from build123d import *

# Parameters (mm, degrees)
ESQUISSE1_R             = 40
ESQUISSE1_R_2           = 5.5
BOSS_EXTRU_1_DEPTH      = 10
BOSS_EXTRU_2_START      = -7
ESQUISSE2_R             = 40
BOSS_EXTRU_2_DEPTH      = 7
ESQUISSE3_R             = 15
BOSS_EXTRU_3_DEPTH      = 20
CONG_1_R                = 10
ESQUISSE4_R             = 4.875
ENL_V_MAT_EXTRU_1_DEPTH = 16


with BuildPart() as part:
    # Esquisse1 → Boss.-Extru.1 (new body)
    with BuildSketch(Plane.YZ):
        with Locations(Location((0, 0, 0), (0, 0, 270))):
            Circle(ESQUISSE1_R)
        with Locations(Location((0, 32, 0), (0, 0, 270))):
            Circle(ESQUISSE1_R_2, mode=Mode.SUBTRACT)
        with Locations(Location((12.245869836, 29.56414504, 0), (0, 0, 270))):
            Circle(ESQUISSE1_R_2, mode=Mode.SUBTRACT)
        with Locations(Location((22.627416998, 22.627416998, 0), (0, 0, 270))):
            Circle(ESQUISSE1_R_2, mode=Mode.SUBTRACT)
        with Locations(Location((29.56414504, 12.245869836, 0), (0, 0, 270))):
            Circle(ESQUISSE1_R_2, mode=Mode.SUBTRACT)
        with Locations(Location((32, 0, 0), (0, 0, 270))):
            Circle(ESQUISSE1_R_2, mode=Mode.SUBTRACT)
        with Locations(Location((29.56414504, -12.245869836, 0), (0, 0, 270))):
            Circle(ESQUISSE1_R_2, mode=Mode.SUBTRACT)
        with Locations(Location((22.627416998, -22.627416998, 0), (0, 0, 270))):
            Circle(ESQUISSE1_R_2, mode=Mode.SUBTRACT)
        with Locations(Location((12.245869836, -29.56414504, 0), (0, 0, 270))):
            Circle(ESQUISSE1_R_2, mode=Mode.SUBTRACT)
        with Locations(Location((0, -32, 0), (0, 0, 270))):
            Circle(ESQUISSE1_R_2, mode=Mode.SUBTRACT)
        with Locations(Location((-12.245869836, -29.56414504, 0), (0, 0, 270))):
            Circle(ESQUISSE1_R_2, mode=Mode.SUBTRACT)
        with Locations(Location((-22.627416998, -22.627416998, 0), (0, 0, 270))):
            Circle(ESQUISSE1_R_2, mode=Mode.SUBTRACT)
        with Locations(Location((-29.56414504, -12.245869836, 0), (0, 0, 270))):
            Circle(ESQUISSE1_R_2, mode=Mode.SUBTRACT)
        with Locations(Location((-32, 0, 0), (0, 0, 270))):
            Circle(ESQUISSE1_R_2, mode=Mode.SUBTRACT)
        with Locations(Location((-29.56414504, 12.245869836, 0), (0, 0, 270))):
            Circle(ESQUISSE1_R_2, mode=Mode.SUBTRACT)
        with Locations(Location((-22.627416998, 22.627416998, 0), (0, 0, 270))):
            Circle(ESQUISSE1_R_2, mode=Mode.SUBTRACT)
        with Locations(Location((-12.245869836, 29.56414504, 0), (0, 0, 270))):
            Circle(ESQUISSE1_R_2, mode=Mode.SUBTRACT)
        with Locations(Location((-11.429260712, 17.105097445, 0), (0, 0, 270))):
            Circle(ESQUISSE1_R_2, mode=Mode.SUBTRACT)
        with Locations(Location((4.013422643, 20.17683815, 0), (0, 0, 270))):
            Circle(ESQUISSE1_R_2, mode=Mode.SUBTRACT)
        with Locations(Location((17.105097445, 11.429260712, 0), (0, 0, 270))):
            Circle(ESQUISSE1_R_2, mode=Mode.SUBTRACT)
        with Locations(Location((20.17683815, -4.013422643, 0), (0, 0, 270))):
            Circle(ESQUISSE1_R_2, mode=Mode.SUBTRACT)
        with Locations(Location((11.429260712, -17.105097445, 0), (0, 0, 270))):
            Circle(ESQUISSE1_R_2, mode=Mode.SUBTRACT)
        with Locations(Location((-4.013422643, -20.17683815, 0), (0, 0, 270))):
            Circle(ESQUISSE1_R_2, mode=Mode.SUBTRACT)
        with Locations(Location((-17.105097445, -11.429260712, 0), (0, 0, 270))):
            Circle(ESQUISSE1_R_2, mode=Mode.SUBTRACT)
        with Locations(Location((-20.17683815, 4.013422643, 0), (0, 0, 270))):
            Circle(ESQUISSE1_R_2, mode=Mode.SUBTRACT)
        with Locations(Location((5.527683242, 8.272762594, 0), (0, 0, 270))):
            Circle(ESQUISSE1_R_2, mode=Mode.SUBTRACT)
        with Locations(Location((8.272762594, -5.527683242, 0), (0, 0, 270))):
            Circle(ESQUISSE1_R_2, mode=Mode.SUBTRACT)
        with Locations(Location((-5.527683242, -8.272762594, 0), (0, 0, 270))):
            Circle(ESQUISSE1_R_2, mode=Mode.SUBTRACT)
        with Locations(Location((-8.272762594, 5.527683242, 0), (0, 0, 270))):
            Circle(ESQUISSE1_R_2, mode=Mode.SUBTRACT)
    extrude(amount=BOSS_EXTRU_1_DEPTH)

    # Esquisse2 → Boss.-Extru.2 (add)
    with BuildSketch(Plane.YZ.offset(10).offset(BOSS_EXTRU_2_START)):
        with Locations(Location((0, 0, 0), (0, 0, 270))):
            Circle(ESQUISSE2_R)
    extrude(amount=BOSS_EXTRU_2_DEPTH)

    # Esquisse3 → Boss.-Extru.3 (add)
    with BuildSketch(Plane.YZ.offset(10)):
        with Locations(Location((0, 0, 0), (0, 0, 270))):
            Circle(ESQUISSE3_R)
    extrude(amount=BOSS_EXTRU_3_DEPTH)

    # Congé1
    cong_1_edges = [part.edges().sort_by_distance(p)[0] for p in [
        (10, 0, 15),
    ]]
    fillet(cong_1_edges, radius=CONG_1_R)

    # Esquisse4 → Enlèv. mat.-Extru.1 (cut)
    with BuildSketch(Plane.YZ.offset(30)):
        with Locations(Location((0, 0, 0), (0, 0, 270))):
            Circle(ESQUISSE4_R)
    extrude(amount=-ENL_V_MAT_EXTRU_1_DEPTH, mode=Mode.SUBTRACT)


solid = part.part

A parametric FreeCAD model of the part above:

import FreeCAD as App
import Part
import Sketcher
from FreeCAD import Vector
Q = App.Units.Quantity


def edges_at(feature, points):
    """Names of the edges that pass closest to the given points."""
    edges = feature.Shape.Edges
    near = lambda p: min(range(len(edges)), key=lambda i: edges[i].distToShape(Part.Vertex(*p))[0])
    return sorted({f"Edge{near(p) + 1}" for p in points})

doc = App.newDocument("Part")
body = doc.addObject("PartDesign::Body", "Body")

sketch1 = doc.addObject("Sketcher::SketchObject", "Sketch")
body.addObject(sketch1)
sketch1.AttachmentSupport = (doc.YZ_Plane, [""])
sketch1.MapMode = "FlatFace"
sketch1.addGeometry(Part.Circle(Vector(0, 0, 0), Vector(0, 0, 1), 40), False)
sketch1.addGeometry(Part.Circle(Vector(-22.627417, 22.627417, 0), Vector(0, 0, 1), 5.5), False)
sketch1.addGeometry(Part.Circle(Vector(-29.564145, 12.24587, 0), Vector(0, 0, 1), 5.5), False)
sketch1.addGeometry(Part.Circle(Vector(-20.176838, 4.013423, 0), Vector(0, 0, 1), 5.5), False)
sketch1.addGeometry(Part.Circle(Vector(-12.24587, 29.564145, 0), Vector(0, 0, 1), 5.5), False)
sketch1.addGeometry(Part.Circle(Vector(0, 32, 0), Vector(0, 0, 1), 5.5), False)
sketch1.addGeometry(Part.Circle(Vector(-11.429261, 17.105097, 0), Vector(0, 0, 1), 5.5), False)
sketch1.addGeometry(Part.Circle(Vector(-8.272763, 5.527683, 0), Vector(0, 0, 1), 5.5), False)
sketch1.addGeometry(Part.Circle(Vector(-32, 0, 0), Vector(0, 0, 1), 5.5), False)
sketch1.addGeometry(Part.Circle(Vector(-29.564145, -12.24587, 0), Vector(0, 0, 1), 5.5), False)
sketch1.addGeometry(Part.Circle(Vector(-22.627417, -22.627417, 0), Vector(0, 0, 1), 5.5), False)
sketch1.addGeometry(Part.Circle(Vector(-17.105097, -11.429261, 0), Vector(0, 0, 1), 5.5), False)
sketch1.addGeometry(Part.Circle(Vector(-5.527683, -8.272763, 0), Vector(0, 0, 1), 5.5), False)
sketch1.addGeometry(Part.Circle(Vector(-12.24587, -29.564145, 0), Vector(0, 0, 1), 5.5), False)
sketch1.addGeometry(Part.Circle(Vector(-4.013423, -20.176838, 0), Vector(0, 0, 1), 5.5), False)
sketch1.addGeometry(Part.Circle(Vector(4.013423, 20.176838, 0), Vector(0, 0, 1), 5.5), False)
sketch1.addGeometry(Part.Circle(Vector(12.24587, 29.564145, 0), Vector(0, 0, 1), 5.5), False)
sketch1.addGeometry(Part.Circle(Vector(5.527683, 8.272763, 0), Vector(0, 0, 1), 5.5), False)
sketch1.addGeometry(Part.Circle(Vector(17.105097, 11.429261, 0), Vector(0, 0, 1), 5.5), False)
sketch1.addGeometry(Part.Circle(Vector(22.627417, 22.627417, 0), Vector(0, 0, 1), 5.5), False)
sketch1.addGeometry(Part.Circle(Vector(29.564145, 12.24587, 0), Vector(0, 0, 1), 5.5), False)
sketch1.addGeometry(Part.Circle(Vector(32, 0, 0), Vector(0, 0, 1), 5.5), False)
sketch1.addGeometry(Part.Circle(Vector(8.272763, -5.527683, 0), Vector(0, 0, 1), 5.5), False)
sketch1.addGeometry(Part.Circle(Vector(11.429261, -17.105097, 0), Vector(0, 0, 1), 5.5), False)
sketch1.addGeometry(Part.Circle(Vector(0, -32, 0), Vector(0, 0, 1), 5.5), False)
sketch1.addGeometry(Part.Circle(Vector(12.24587, -29.564145, 0), Vector(0, 0, 1), 5.5), False)
sketch1.addGeometry(Part.Circle(Vector(20.176838, -4.013423, 0), Vector(0, 0, 1), 5.5), False)
sketch1.addGeometry(Part.Circle(Vector(29.564145, -12.24587, 0), Vector(0, 0, 1), 5.5), False)
sketch1.addGeometry(Part.Circle(Vector(22.627417, -22.627417, 0), Vector(0, 0, 1), 5.5), False)
sketch1.addConstraint(Sketcher.Constraint("Coincident", 0, 3, -1, 1))
sketch1.addConstraint(Sketcher.Constraint("Equal", 1, 2))
sketch1.addConstraint(Sketcher.Constraint("Equal", 2, 3))
sketch1.addConstraint(Sketcher.Constraint("Equal", 3, 4))
sketch1.addConstraint(Sketcher.Constraint("Equal", 4, 5))
sketch1.addConstraint(Sketcher.Constraint("Equal", 5, 6))
sketch1.addConstraint(Sketcher.Constraint("Equal", 6, 7))
sketch1.addConstraint(Sketcher.Constraint("Equal", 7, 8))
sketch1.addConstraint(Sketcher.Constraint("Equal", 8, 9))
sketch1.addConstraint(Sketcher.Constraint("Equal", 9, 10))
sketch1.addConstraint(Sketcher.Constraint("Equal", 10, 11))
sketch1.addConstraint(Sketcher.Constraint("Equal", 11, 12))
sketch1.addConstraint(Sketcher.Constraint("Equal", 12, 13))
sketch1.addConstraint(Sketcher.Constraint("Equal", 13, 14))
sketch1.addConstraint(Sketcher.Constraint("Equal", 14, 15))
sketch1.addConstraint(Sketcher.Constraint("Equal", 15, 16))
sketch1.addConstraint(Sketcher.Constraint("Equal", 16, 17))
sketch1.addConstraint(Sketcher.Constraint("Equal", 17, 18))
sketch1.addConstraint(Sketcher.Constraint("Equal", 18, 19))
sketch1.addConstraint(Sketcher.Constraint("Equal", 19, 20))
sketch1.addConstraint(Sketcher.Constraint("Equal", 20, 21))
sketch1.addConstraint(Sketcher.Constraint("Equal", 21, 22))
sketch1.addConstraint(Sketcher.Constraint("Equal", 22, 23))
sketch1.addConstraint(Sketcher.Constraint("Equal", 23, 24))
sketch1.addConstraint(Sketcher.Constraint("Equal", 24, 25))
sketch1.addConstraint(Sketcher.Constraint("Equal", 25, 26))
sketch1.addConstraint(Sketcher.Constraint("Equal", 26, 27))
sketch1.addConstraint(Sketcher.Constraint("Equal", 27, 28))
sketch1.addConstraint(Sketcher.Constraint("Symmetric", 14, 3, 15, 3, -1, 1))
sketch1.addConstraint(Sketcher.Constraint("Symmetric", 13, 3, 16, 3, -1, 1))
sketch1.addConstraint(Sketcher.Constraint("Symmetric", 12, 3, 17, 3, -1, 1))
sketch1.addConstraint(Sketcher.Constraint("Symmetric", 11, 3, 18, 3, -1, 1))
sketch1.addConstraint(Sketcher.Constraint("Symmetric", 10, 3, 19, 3, -1, 1))
sketch1.addConstraint(Sketcher.Constraint("Symmetric", 9, 3, 20, 3, -1, 1))
sketch1.addConstraint(Sketcher.Constraint("Symmetric", 8, 3, 21, 3, -1, 1))
sketch1.addConstraint(Sketcher.Constraint("Symmetric", 7, 3, 22, 3, -1, 1))
sketch1.addConstraint(Sketcher.Constraint("Symmetric", 6, 3, 23, 3, -1, 1))
sketch1.addConstraint(Sketcher.Constraint("Symmetric", 5, 3, 24, 3, -1, 1))
sketch1.addConstraint(Sketcher.Constraint("Symmetric", 4, 3, 25, 3, -1, 1))
sketch1.addConstraint(Sketcher.Constraint("Symmetric", 3, 3, 26, 3, -1, 1))
sketch1.addConstraint(Sketcher.Constraint("Symmetric", 2, 3, 27, 3, -1, 1))
sketch1.addConstraint(Sketcher.Constraint("Symmetric", 1, 3, 28, 3, -1, 1))
sketch1.addConstraint(Sketcher.Constraint("Symmetric", 4, 3, 16, 3, -2))
sketch1.addConstraint(Sketcher.Constraint("Symmetric", 1, 3, 19, 3, -2))
sketch1.addConstraint(Sketcher.Constraint("Symmetric", 2, 3, 20, 3, -2))
sketch1.addConstraint(Sketcher.Constraint("PointOnObject", 5, 3, -2))
sketch1.addConstraint(Sketcher.Constraint("PointOnObject", 8, 3, -1))
sketch1.addConstraint(Sketcher.Constraint("Diameter", 0, Q("80 mm")))
sketch1.addConstraint(Sketcher.Constraint("Diameter", 1, Q("11 mm")))
sketch1.addConstraint(Sketcher.Constraint("DistanceY", -1, 1, 5, 3, Q("32 mm")))
sketch1.addConstraint(Sketcher.Constraint("DistanceX", 8, 3, -1, 1, Q("32 mm")))
sketch1.addConstraint(Sketcher.Constraint("DistanceX", 6, 3, 7, 3, Q("3.156498 mm")))
sketch1.addConstraint(Sketcher.Constraint("DistanceY", 10, 3, 7, 3, Q("28.1551 mm")))
sketch1.addConstraint(Sketcher.Constraint("DistanceY", 11, 3, 12, 3, Q("3.156498 mm")))
sketch1.addConstraint(Sketcher.Constraint("DistanceY", -1, 1, 2, 3, Q("12.24587 mm")))
sketch1.addConstraint(Sketcher.Constraint("DistanceX", 3, 3, -1, 1, Q("20.176838 mm")))
sketch1.addConstraint(Sketcher.Constraint("DistanceX", 4, 3, -1, 1, Q("12.24587 mm")))
sketch1.addConstraint(Sketcher.Constraint("DistanceX", 6, 3, -1, 1, Q("11.429261 mm")))
sketch1.addConstraint(Sketcher.Constraint("DistanceY", 11, 3, -1, 1, Q("11.429261 mm")))
sketch1.addConstraint(Sketcher.Constraint("DistanceY", 14, 3, -1, 1, Q("20.176838 mm")))
sketch1.addConstraint(Sketcher.Constraint("DistanceX", 2, 3, 1, 3, Q("6.936728 mm")))
sketch1.addConstraint(Sketcher.Constraint("DistanceX", 1, 3, 3, 3, Q("2.450579 mm")))
sketch1.addConstraint(Sketcher.Constraint("DistanceY", 1, 3, 4, 3, Q("6.936728 mm")))
sketch1.addConstraint(Sketcher.Constraint("DistanceY", 6, 3, 1, 3, Q("5.52232 mm")))
sketch1.addConstraint(Sketcher.Constraint("DistanceY", 3, 3, 7, 3, Q("1.514261 mm")))
sketch1.addConstraint(Sketcher.Constraint("DistanceX", 10, 3, 11, 3, Q("5.52232 mm")))
sketch1.addConstraint(Sketcher.Constraint("DistanceX", 7, 3, 12, 3, Q("2.745079 mm")))
sketch1.addConstraint(Sketcher.Constraint("DistanceX", 12, 3, 14, 3, Q("1.514261 mm")))
sketch1.addConstraint(Sketcher.Constraint("DistanceY", 10, 3, 14, 3, Q("2.450579 mm")))
pad1 = doc.addObject("PartDesign::Pad", "Pad")
body.addObject(pad1)
pad1.Profile = sketch1
pad1.Length = 10

sketch2 = doc.addObject("Sketcher::SketchObject", "Sketch001")
body.addObject(sketch2)
sketch2.AttachmentSupport = (doc.YZ_Plane, [""])
sketch2.MapMode = "FlatFace"
sketch2.AttachmentOffset = App.Placement(Vector(0, 0, 3), App.Rotation())
sketch2.addGeometry(Part.Circle(Vector(0, 0, 0), Vector(0, 0, 1), 40), False)
sketch2.addConstraint(Sketcher.Constraint("Coincident", 0, 3, -1, 1))
sketch2.addConstraint(Sketcher.Constraint("Diameter", 0, Q("80 mm")))
pad2 = doc.addObject("PartDesign::Pad", "Pad001")
body.addObject(pad2)
pad2.Profile = sketch2
pad2.Length = 7

sketch3 = doc.addObject("Sketcher::SketchObject", "Sketch002")
body.addObject(sketch3)
sketch3.AttachmentSupport = (doc.YZ_Plane, [""])
sketch3.MapMode = "FlatFace"
sketch3.AttachmentOffset = App.Placement(Vector(0, 0, 10), App.Rotation())
sketch3.addGeometry(Part.Circle(Vector(0, 0, 0), Vector(0, 0, 1), 15), False)
sketch3.addConstraint(Sketcher.Constraint("Coincident", 0, 3, -1, 1))
sketch3.addConstraint(Sketcher.Constraint("Diameter", 0, Q("30 mm")))
pad3 = doc.addObject("PartDesign::Pad", "Pad002")
body.addObject(pad3)
pad3.Profile = sketch3
pad3.Length = 20
doc.recompute()

fillet = doc.addObject("PartDesign::Fillet", "Fillet")
body.addObject(fillet)
fillet.Base = (pad3, edges_at(pad3, [(10, 0, 15)]))
fillet.Radius = 10

sketch4 = doc.addObject("Sketcher::SketchObject", "Sketch003")
body.addObject(sketch4)
sketch4.AttachmentSupport = (doc.YZ_Plane, [""])
sketch4.MapMode = "FlatFace"
sketch4.AttachmentOffset = App.Placement(Vector(0, 0, 30), App.Rotation())
sketch4.addGeometry(Part.Circle(Vector(0, 0, 0), Vector(0, 0, 1), 4.875), False)
sketch4.addConstraint(Sketcher.Constraint("Coincident", 0, 3, -1, 1))
sketch4.addConstraint(Sketcher.Constraint("Diameter", 0, Q("9.75 mm")))
pocket1 = doc.addObject("PartDesign::Pocket", "Pocket")
body.addObject(pocket1)
pocket1.Profile = sketch4
pocket1.Length = 16

doc.recompute()
